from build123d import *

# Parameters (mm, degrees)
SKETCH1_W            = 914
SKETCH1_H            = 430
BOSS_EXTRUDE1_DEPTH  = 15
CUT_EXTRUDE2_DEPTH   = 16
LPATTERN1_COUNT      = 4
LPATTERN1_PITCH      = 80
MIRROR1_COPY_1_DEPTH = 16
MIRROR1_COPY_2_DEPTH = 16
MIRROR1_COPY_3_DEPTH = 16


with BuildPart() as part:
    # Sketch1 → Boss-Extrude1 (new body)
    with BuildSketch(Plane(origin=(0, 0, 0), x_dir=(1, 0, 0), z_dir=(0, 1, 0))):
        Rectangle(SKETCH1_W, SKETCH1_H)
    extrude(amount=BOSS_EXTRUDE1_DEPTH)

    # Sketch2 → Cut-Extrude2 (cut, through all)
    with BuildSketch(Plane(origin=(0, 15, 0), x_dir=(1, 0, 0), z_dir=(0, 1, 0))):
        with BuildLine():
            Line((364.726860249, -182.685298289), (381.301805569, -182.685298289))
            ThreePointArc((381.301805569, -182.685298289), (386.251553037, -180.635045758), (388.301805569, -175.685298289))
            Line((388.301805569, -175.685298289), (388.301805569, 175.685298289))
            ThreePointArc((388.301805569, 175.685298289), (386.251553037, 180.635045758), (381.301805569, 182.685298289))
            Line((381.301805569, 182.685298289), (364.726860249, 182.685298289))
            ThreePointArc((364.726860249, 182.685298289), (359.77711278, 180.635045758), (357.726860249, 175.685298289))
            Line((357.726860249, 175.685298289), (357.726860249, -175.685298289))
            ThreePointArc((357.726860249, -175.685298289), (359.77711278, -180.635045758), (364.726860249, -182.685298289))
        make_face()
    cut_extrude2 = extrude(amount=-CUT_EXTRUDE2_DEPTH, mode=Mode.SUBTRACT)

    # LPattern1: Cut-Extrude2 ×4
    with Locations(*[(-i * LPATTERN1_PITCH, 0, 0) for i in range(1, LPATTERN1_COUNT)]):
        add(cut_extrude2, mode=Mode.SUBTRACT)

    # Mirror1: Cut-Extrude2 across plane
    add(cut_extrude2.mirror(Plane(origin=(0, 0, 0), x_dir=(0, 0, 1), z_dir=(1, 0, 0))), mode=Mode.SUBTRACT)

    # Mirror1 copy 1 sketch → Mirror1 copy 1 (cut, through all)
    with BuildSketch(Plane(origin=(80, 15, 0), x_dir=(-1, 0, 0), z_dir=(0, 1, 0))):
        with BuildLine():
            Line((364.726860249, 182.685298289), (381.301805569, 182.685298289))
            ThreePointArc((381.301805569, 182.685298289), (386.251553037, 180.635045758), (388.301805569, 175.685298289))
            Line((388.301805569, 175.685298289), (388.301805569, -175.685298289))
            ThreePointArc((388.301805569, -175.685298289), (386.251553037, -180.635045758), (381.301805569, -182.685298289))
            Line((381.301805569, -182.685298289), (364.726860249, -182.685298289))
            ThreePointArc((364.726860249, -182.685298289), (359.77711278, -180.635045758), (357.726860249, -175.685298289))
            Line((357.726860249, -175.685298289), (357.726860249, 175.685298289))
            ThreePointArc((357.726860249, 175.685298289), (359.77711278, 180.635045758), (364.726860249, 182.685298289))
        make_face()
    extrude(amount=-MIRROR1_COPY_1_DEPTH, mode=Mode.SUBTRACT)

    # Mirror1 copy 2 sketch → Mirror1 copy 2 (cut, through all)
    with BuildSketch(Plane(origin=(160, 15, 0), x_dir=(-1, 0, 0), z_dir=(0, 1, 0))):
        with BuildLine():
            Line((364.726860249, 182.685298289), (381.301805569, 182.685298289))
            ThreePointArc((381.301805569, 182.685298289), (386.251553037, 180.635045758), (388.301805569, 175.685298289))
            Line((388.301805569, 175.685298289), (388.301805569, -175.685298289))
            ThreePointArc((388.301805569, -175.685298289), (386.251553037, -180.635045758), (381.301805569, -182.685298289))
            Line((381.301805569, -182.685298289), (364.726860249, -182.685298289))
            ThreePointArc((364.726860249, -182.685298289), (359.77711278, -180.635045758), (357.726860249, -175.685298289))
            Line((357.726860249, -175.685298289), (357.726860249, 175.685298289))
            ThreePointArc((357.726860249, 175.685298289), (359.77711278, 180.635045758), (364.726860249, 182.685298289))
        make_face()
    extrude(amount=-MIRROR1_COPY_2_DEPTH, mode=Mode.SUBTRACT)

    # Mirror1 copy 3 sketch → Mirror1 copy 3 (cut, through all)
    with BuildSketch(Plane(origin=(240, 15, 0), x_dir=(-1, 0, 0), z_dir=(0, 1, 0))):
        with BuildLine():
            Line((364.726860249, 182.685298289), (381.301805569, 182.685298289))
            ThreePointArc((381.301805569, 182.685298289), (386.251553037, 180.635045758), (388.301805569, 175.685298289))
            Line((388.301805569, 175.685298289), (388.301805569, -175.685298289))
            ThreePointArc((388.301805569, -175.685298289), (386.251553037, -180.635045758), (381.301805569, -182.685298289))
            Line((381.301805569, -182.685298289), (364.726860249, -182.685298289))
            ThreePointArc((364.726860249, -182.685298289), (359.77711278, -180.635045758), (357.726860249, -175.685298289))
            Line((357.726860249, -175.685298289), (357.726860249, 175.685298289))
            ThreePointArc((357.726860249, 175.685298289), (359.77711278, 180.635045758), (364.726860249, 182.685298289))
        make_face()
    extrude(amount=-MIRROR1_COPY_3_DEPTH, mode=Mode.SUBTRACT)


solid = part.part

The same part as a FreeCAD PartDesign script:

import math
import FreeCAD as App
import Part
import Sketcher
Q = App.Units.Quantity


def add_polygon(sketch, points):
    """Adds a closed chain of lines whose ends are joined by coincident constraints."""
    first, n = sketch.GeometryCount, len(points)
    for a, b in zip(points, points[1:] + points[:1]):
        sketch.addGeometry(Part.LineSegment(App.Vector(*a, 0), App.Vector(*b, 0)), False)
    for i in range(n):
        sketch.addConstraint(Sketcher.Constraint("Coincident", first + i, 2, first + (i + 1) % n, 1))

doc = App.newDocument("Part")
body = doc.addObject("PartDesign::Body", "Body")

sketch1 = doc.addObject("Sketcher::SketchObject", "Sketch")
body.addObject(sketch1)
sketch1.AttachmentSupport = (doc.XZ_Plane, [""])
sketch1.MapMode = "FlatFace"
add_polygon(sketch1, [(-457, -215), (-457, 215), (457, 215), (457, -215)])
sketch1.addConstraint(Sketcher.Constraint("Vertical", 0))
sketch1.addConstraint(Sketcher.Constraint("Horizontal", 1))
sketch1.addConstraint(Sketcher.Constraint("Vertical", 2))
sketch1.addConstraint(Sketcher.Constraint("Horizontal", 3))
sketch1.addConstraint(Sketcher.Constraint("Symmetric", 0, 2, 2, 2, -1, 1))
sketch1.addConstraint(Sketcher.Constraint("DistanceX", 1, 1, 1, 2, Q("914 mm")))
sketch1.addConstraint(Sketcher.Constraint("DistanceY", 0, 1, 0, 2, Q("430 mm")))
pad1 = doc.addObject("PartDesign::Pad", "Pad")
body.addObject(pad1)
pad1.Profile = sketch1
pad1.Length = 15
pad1.Reversed = True

sketch2 = doc.addObject("Sketcher::SketchObject", "Sketch001")
body.addObject(sketch2)
sketch2.AttachmentSupport = (doc.XZ_Plane, [""])
sketch2.MapMode = "FlatFace"
sketch2.AttachmentOffset = App.Placement(App.Vector(0, 0, -15), App.Rotation())
sketch2.addGeometry(Part.LineSegment(App.Vector(365, 183, 0), App.Vector(381, 183, 0)), False)
sketch2.addGeometry(Part.ArcOfCircle(Part.Circle(App.Vector(381, 176, 0), App.Vector(0, 0, 1), 7), math.radians(0), math.radians(90)), False)
sketch2.addGeometry(Part.LineSegment(App.Vector(388, 176, 0), App.Vector(388, -176, 0)), False)
sketch2.addGeometry(Part.ArcOfCircle(Part.Circle(App.Vector(381, -176, 0), App.Vector(0, 0, 1), 7), math.radians(-90), math.radians(0)), False)
sketch2.addGeometry(Part.LineSegment(App.Vector(381, -183, 0), App.Vector(365, -183, 0)), False)
sketch2.addGeometry(Part.ArcOfCircle(Part.Circle(App.Vector(365, -176, 0), App.Vector(0, 0, 1), 7), math.radians(180), math.radians(270)), False)
sketch2.addGeometry(Part.LineSegment(App.Vector(358, -176, 0), App.Vector(358, 176, 0)), False)
sketch2.addGeometry(Part.ArcOfCircle(Part.Circle(App.Vector(365, 176, 0), App.Vector(0, 0, 1), 7), math.radians(90), math.radians(180)), False)
sketch2.addConstraint(Sketcher.Constraint("Tangent", 0, 2, 1, 2))
sketch2.addConstraint(Sketcher.Constraint("Tangent", 1, 1, 2, 1))
sketch2.addConstraint(Sketcher.Constraint("Tangent", 2, 2, 3, 2))
sketch2.addConstraint(Sketcher.Constraint("Tangent", 3, 1, 4, 1))
sketch2.addConstraint(Sketcher.Constraint("Tangent", 4, 2, 5, 2))
sketch2.addConstraint(Sketcher.Constraint("Tangent", 5, 1, 6, 1))
sketch2.addConstraint(Sketcher.Constraint("Tangent", 6, 2, 7, 2))
sketch2.addConstraint(Sketcher.Constraint("Tangent", 7, 1, 0, 1))
sketch2.addConstraint(Sketcher.Constraint("Horizontal", 0))
sketch2.addConstraint(Sketcher.Constraint("Vertical", 2))
sketch2.addConstraint(Sketcher.Constraint("Horizontal", 4))
sketch2.addConstraint(Sketcher.Constraint("Vertical", 6))
sketch2.addConstraint(Sketcher.Constraint("Equal", 1, 3))
sketch2.addConstraint(Sketcher.Constraint("Equal", 3, 5))
sketch2.addConstraint(Sketcher.Constraint("Equal", 5, 7))
sketch2.addConstraint(Sketcher.Constraint("Radius", 1, Q("7 mm")))
sketch2.addConstraint(Sketcher.Constraint("DistanceY", -1, 1, 1, 3, Q("175.685298 mm")))
sketch2.addConstraint(Sketcher.Constraint("DistanceY", 3, 3, -1, 1, Q("175.685298 mm")))
sketch2.addConstraint(Sketcher.Constraint("DistanceX", 0, 1, 0, 2, Q("16.574945 mm")))
sketch2.addConstraint(Sketcher.Constraint("DistanceX", -1, 1, 5, 3, Q("364.72686 mm")))
pocket1 = doc.addObject("PartDesign::Pocket", "Pocket")
body.addObject(pocket1)
pocket1.Profile = sketch2
pocket1.Type = "ThroughAll"
pocket1.Reversed = True
doc.recompute()

linearpattern = doc.addObject("PartDesign::LinearPattern", "LinearPattern")
body.addObject(linearpattern)
linearpattern.Originals = [pocket1]
linearpattern.Direction = (doc.X_Axis, [""])
linearpattern.Mode = "offset"
linearpattern.Offset = 80
linearpattern.Occurrences = 4
linearpattern.Reversed = True
body.Tip = linearpattern
doc.recompute()

mirrored = doc.addObject("PartDesign::Mirrored", "Mirrored")
body.addObject(mirrored)
mirrored.Originals = [pocket1]
mirrored.MirrorPlane = (doc.YZ_Plane, [""])
body.Tip = mirrored

sketch3 = doc.addObject("Sketcher::SketchObject", "Sketch002")
body.addObject(sketch3)
sketch3.AttachmentSupport = (doc.XZ_Plane, [""])
sketch3.MapMode = "FlatFace"
sketch3.AttachmentOffset = App.Placement(App.Vector(0, 0, -15), App.Rotation())
sketch3.addGeometry(Part.LineSegment(App.Vector(-301, 183, 0), App.Vector(-285, 183, 0)), False)
sketch3.addGeometry(Part.ArcOfCircle(Part.Circle(App.Vector(-285, 176, 0), App.Vector(0, 0, 1), 7), math.radians(0), math.radians(90)), False)
sketch3.addGeometry(Part.LineSegment(App.Vector(-278, 176, 0), App.Vector(-278, -176, 0)), False)
sketch3.addGeometry(Part.ArcOfCircle(Part.Circle(App.Vector(-285, -176, 0), App.Vector(0, 0, 1), 7), math.radians(-90), math.radians(0)), False)
sketch3.addGeometry(Part.LineSegment(App.Vector(-285, -183, 0), App.Vector(-301, -183, 0)), False)
sketch3.addGeometry(Part.ArcOfCircle(Part.Circle(App.Vector(-301, -176, 0), App.Vector(0, 0, 1), 7), math.radians(180), math.radians(270)), False)
sketch3.addGeometry(Part.LineSegment(App.Vector(-308, -176, 0), App.Vector(-308, 176, 0)), False)
sketch3.addGeometry(Part.ArcOfCircle(Part.Circle(App.Vector(-301, 176, 0), App.Vector(0, 0, 1), 7), math.radians(90), math.radians(180)), False)
sketch3.addConstraint(Sketcher.Constraint("Tangent", 0, 2, 1, 2))
sketch3.addConstraint(Sketcher.Constraint("Tangent", 1, 1, 2, 1))
sketch3.addConstraint(Sketcher.Constraint("Tangent", 2, 2, 3, 2))
sketch3.addConstraint(Sketcher.Constraint("Tangent", 3, 1, 4, 1))
sketch3.addConstraint(Sketcher.Constraint("Tangent", 4, 2, 5, 2))
sketch3.addConstraint(Sketcher.Constraint("Tangent", 5, 1, 6, 1))
sketch3.addConstraint(Sketcher.Constraint("Tangent", 6, 2, 7, 2))
sketch3.addConstraint(Sketcher.Constraint("Tangent", 7, 1, 0, 1))
sketch3.addConstraint(Sketcher.Constraint("Horizontal", 0))
sketch3.addConstraint(Sketcher.Constraint("Vertical", 2))
sketch3.addConstraint(Sketcher.Constraint("Horizontal", 4))
sketch3.addConstraint(Sketcher.Constraint("Vertical", 6))
sketch3.addConstraint(Sketcher.Constraint("Equal", 1, 3))
sketch3.addConstraint(Sketcher.Constraint("Equal", 3, 5))
sketch3.addConstraint(Sketcher.Constraint("Equal", 5, 7))
sketch3.addConstraint(Sketcher.Constraint("Radius", 1, Q("7 mm")))
sketch3.addConstraint(Sketcher.Constraint("DistanceY", -1, 1, 1, 3, Q("175.685298 mm")))
sketch3.addConstraint(Sketcher.Constraint("DistanceY", 3, 3, -1, 1, Q("175.685298 mm")))
sketch3.addConstraint(Sketcher.Constraint("DistanceX", 0, 1, 0, 2, Q("16.574945 mm")))
sketch3.addConstraint(Sketcher.Constraint("DistanceX", 1, 3, -1, 1, Q("284.72686 mm")))
pocket2 = doc.addObject("PartDesign::Pocket", "Pocket001")
body.addObject(pocket2)
pocket2.Profile = sketch3
pocket2.Type = "ThroughAll"
pocket2.Reversed = True

sketch4 = doc.addObject("Sketcher::SketchObject", "Sketch003")
body.addObject(sketch4)
sketch4.AttachmentSupport = (doc.XZ_Plane, [""])
sketch4.MapMode = "FlatFace"
sketch4.AttachmentOffset = App.Placement(App.Vector(0, 0, -15), App.Rotation())
sketch4.addGeometry(Part.LineSegment(App.Vector(-221, 183, 0), App.Vector(-205, 183, 0)), False)
sketch4.addGeometry(Part.ArcOfCircle(Part.Circle(App.Vector(-205, 176, 0), App.Vector(0, 0, 1), 7), math.radians(0), math.radians(90)), False)
sketch4.addGeometry(Part.LineSegment(App.Vector(-198, 176, 0), App.Vector(-198, -176, 0)), False)
sketch4.addGeometry(Part.ArcOfCircle(Part.Circle(App.Vector(-205, -176, 0), App.Vector(0, 0, 1), 7), math.radians(-90), math.radians(0)), False)
sketch4.addGeometry(Part.LineSegment(App.Vector(-205, -183, 0), App.Vector(-221, -183, 0)), False)
sketch4.addGeometry(Part.ArcOfCircle(Part.Circle(App.Vector(-221, -176, 0), App.Vector(0, 0, 1), 7), math.radians(180), math.radians(270)), False)
sketch4.addGeometry(Part.LineSegment(App.Vector(-228, -176, 0), App.Vector(-228, 176, 0)), False)
sketch4.addGeometry(Part.ArcOfCircle(Part.Circle(App.Vector(-221, 176, 0), App.Vector(0, 0, 1), 7), math.radians(90), math.radians(180)), False)
sketch4.addConstraint(Sketcher.Constraint("Tangent", 0, 2, 1, 2))
sketch4.addConstraint(Sketcher.Constraint("Tangent", 1, 1, 2, 1))
sketch4.addConstraint(Sketcher.Constraint("Tangent", 2, 2, 3, 2))
sketch4.addConstraint(Sketcher.Constraint("Tangent", 3, 1, 4, 1))
sketch4.addConstraint(Sketcher.Constraint("Tangent", 4, 2, 5, 2))
sketch4.addConstraint(Sketcher.Constraint("Tangent", 5, 1, 6, 1))
sketch4.addConstraint(Sketcher.Constraint("Tangent", 6, 2, 7, 2))
sketch4.addConstraint(Sketcher.Constraint("Tangent", 7, 1, 0, 1))
sketch4.addConstraint(Sketcher.Constraint("Horizontal", 0))
sketch4.addConstraint(Sketcher.Constraint("Vertical", 2))
sketch4.addConstraint(Sketcher.Constraint("Horizontal", 4))
sketch4.addConstraint(Sketcher.Constraint("Vertical", 6))
sketch4.addConstraint(Sketcher.Constraint("Equal", 1, 3))
sketch4.addConstraint(Sketcher.Constraint("Equal", 3, 5))
sketch4.addConstraint(Sketcher.Constraint("Equal", 5, 7))
sketch4.addConstraint(Sketcher.Constraint("Radius", 1, Q("7 mm")))
sketch4.addConstraint(Sketcher.Constraint("DistanceY", -1, 1, 1, 3, Q("175.685298 mm")))
sketch4.addConstraint(Sketcher.Constraint("DistanceY", 3, 3, -1, 1, Q("175.685298 mm")))
sketch4.addConstraint(Sketcher.Constraint("DistanceX", 0, 1, 0, 2, Q("16.574945 mm")))
sketch4.addConstraint(Sketcher.Constraint("DistanceX", 1, 3, -1, 1, Q("204.72686 mm")))
pocket3 = doc.addObject("PartDesign::Pocket", "Pocket002")
body.addObject(pocket3)
pocket3.Profile = sketch4
pocket3.Type = "ThroughAll"
pocket3.Reversed = True

sketch5 = doc.addObject("Sketcher::SketchObject", "Sketch004")
body.addObject(sketch5)
sketch5.AttachmentSupport = (doc.XZ_Plane, [""])
sketch5.MapMode = "FlatFace"
sketch5.AttachmentOffset = App.Placement(App.Vector(0, 0, -15), App.Rotation())
sketch5.addGeometry(Part.LineSegment(App.Vector(-141, 183, 0), App.Vector(-125, 183, 0)), False)
sketch5.addGeometry(Part.ArcOfCircle(Part.Circle(App.Vector(-125, 176, 0), App.Vector(0, 0, 1), 7), math.radians(0), math.radians(90)), False)
sketch5.addGeometry(Part.LineSegment(App.Vector(-118, 176, 0), App.Vector(-118, -176, 0)), False)
sketch5.addGeometry(Part.ArcOfCircle(Part.Circle(App.Vector(-125, -176, 0), App.Vector(0, 0, 1), 7), math.radians(-90), math.radians(0)), False)
sketch5.addGeometry(Part.LineSegment(App.Vector(-125, -183, 0), App.Vector(-141, -183, 0)), False)
sketch5.addGeometry(Part.ArcOfCircle(Part.Circle(App.Vector(-141, -176, 0), App.Vector(0, 0, 1), 7), math.radians(180), math.radians(270)), False)
sketch5.addGeometry(Part.LineSegment(App.Vector(-148, -176, 0), App.Vector(-148, 176, 0)), False)
sketch5.addGeometry(Part.ArcOfCircle(Part.Circle(App.Vector(-141, 176, 0), App.Vector(0, 0, 1), 7), math.radians(90), math.radians(180)), False)
sketch5.addConstraint(Sketcher.Constraint("Tangent", 0, 2, 1, 2))
sketch5.addConstraint(Sketcher.Constraint("Tangent", 1, 1, 2, 1))
sketch5.addConstraint(Sketcher.Constraint("Tangent", 2, 2, 3, 2))
sketch5.addConstraint(Sketcher.Constraint("Tangent", 3, 1, 4, 1))
sketch5.addConstraint(Sketcher.Constraint("Tangent", 4, 2, 5, 2))
sketch5.addConstraint(Sketcher.Constraint("Tangent", 5, 1, 6, 1))
sketch5.addConstraint(Sketcher.Constraint("Tangent", 6, 2, 7, 2))
sketch5.addConstraint(Sketcher.Constraint("Tangent", 7, 1, 0, 1))
sketch5.addConstraint(Sketcher.Constraint("Horizontal", 0))
sketch5.addConstraint(Sketcher.Constraint("Vertical", 2))
sketch5.addConstraint(Sketcher.Constraint("Horizontal", 4))
sketch5.addConstraint(Sketcher.Constraint("Vertical", 6))
sketch5.addConstraint(Sketcher.Constraint("Equal", 1, 3))
sketch5.addConstraint(Sketcher.Constraint("Equal", 3, 5))
sketch5.addConstraint(Sketcher.Constraint("Equal", 5, 7))
sketch5.addConstraint(Sketcher.Constraint("Radius", 1, Q("7 mm")))
sketch5.addConstraint(Sketcher.Constraint("DistanceY", -1, 1, 1, 3, Q("175.685298 mm")))
sketch5.addConstraint(Sketcher.Constraint("DistanceY", 3, 3, -1, 1, Q("175.685298 mm")))
sketch5.addConstraint(Sketcher.Constraint("DistanceX", 0, 1, 0, 2, Q("16.574945 mm")))
sketch5.addConstraint(Sketcher.Constraint("DistanceX", 1, 3, -1, 1, Q("124.72686 mm")))
pocket4 = doc.addObject("PartDesign::Pocket", "Pocket003")
body.addObject(pocket4)
pocket4.Profile = sketch5
pocket4.Type = "ThroughAll"
pocket4.Reversed = True

doc.recompute()
